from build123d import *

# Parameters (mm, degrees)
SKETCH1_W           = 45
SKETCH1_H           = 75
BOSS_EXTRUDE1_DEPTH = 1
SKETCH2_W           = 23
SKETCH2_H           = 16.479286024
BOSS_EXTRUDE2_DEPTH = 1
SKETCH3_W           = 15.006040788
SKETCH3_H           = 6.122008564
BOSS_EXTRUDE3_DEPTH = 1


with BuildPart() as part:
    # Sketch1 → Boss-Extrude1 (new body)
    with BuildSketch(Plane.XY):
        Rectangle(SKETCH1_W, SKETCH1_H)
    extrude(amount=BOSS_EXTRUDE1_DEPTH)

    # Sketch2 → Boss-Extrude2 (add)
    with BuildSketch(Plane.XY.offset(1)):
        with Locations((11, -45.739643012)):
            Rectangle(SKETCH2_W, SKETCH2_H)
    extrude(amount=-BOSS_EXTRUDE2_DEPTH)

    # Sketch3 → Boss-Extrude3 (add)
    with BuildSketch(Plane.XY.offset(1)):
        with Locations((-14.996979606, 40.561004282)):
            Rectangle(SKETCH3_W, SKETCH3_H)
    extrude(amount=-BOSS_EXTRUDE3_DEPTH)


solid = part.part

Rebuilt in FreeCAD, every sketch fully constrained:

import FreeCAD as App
import Part
import Sketcher
Q = App.Units.Quantity


def add_polygon(sketch, points):
    """Adds a closed chain of lines whose ends are joined by coincident constraints."""
    first, n = sketch.GeometryCount, len(points)
    for a, b in zip(points, points[1:] + points[:1]):
        sketch.addGeometry(Part.LineSegment(App.Vector(*a, 0), App.Vector(*b, 0)), False)
    for i in range(n):
        sketch.addConstraint(Sketcher.Constraint("Coincident", first + i, 2, first + (i + 1) % n, 1))

doc = App.newDocument("Part")
body = doc.addObject("PartDesign::Body", "Body")

# Sketch on XY plane
sketch1 = body.newObject("Sketcher::SketchObject", "Sketch")
sketch1.AttachmentSupport = (doc.getObject("XY_Plane"), [""])
sketch1.MapMode = "FlatFace"
add_polygon(sketch1, [(-22, 38), (-22, -38), (22, -38), (22, 38)])  # lines 0-3
sketch1.addConstraint(Sketcher.Constraint("Vertical", 0))
sketch1.addConstraint(Sketcher.Constraint("Horizontal", 1))
sketch1.addConstraint(Sketcher.Constraint("Vertical", 2))
sketch1.addConstraint(Sketcher.Constraint("Horizontal", 3))
sketch1.addConstraint(Sketcher.Constraint("Symmetric", 0, 2, 2, 2, -1, 1))
sketch1.addConstraint(Sketcher.Constraint("DistanceX", 1, 1, 1, 2, Q("45 mm")))
sketch1.addConstraint(Sketcher.Constraint("DistanceY", 0, 2, 0, 1, Q("75 mm")))
pad1 = body.newObject("PartDesign::Pad", "Pad")
pad1.Profile = sketch1
pad1.Length = 1

# Sketch on XY plane
sketch2 = body.newObject("Sketcher::SketchObject", "Sketch001")
sketch2.AttachmentSupport = (doc.getObject("XY_Plane"), [""])
sketch2.MapMode = "FlatFace"
sketch2.AttachmentOffset = App.Placement(App.Vector(0, 0, 1), App.Rotation())
add_polygon(sketch2, [(0, -38), (0, -54), (22, -54), (22, -38)])  # lines 0-3
sketch2.addConstraint(Sketcher.Constraint("Vertical", 0))
sketch2.addConstraint(Sketcher.Constraint("Horizontal", 1))
sketch2.addConstraint(Sketcher.Constraint("Vertical", 2))
sketch2.addConstraint(Sketcher.Constraint("Horizontal", 3))
sketch2.addConstraint(Sketcher.Constraint("DistanceX", 1, 1, 1, 2, Q("23 mm")))
sketch2.addConstraint(Sketcher.Constraint("DistanceX", 0, 2, -1, 1, Q("0.5 mm")))
sketch2.addConstraint(Sketcher.Constraint("DistanceY", 2, 2, -1, 1, Q("37.5 mm")))
sketch2.addConstraint(Sketcher.Constraint("DistanceY", 0, 2, 0, 1, Q("16.479286 mm")))
pad2 = body.newObject("PartDesign::Pad", "Pad001")
pad2.Profile = sketch2
pad2.Length = 1
pad2.Reversed = True

# Sketch on XY plane
sketch3 = body.newObject("Sketcher::SketchObject", "Sketch002")
sketch3.AttachmentSupport = (doc.getObject("XY_Plane"), [""])
sketch3.MapMode = "FlatFace"
sketch3.AttachmentOffset = App.Placement(App.Vector(0, 0, 1), App.Rotation())
add_polygon(sketch3, [(-22, 44), (-22, 38), (-7, 38), (-7, 44)])  # lines 0-3
sketch3.addConstraint(Sketcher.Constraint("Vertical", 0))
sketch3.addConstraint(Sketcher.Constraint("Horizontal", 1))
sketch3.addConstraint(Sketcher.Constraint("Vertical", 2))
sketch3.addConstraint(Sketcher.Constraint("Horizontal", 3))
sketch3.addConstraint(Sketcher.Constraint("DistanceX", 0, 2, -1, 1, Q("22.5 mm")))
sketch3.addConstraint(Sketcher.Constraint("DistanceY", -1, 1, 0, 2, Q("37.5 mm")))
sketch3.addConstraint(Sketcher.Constraint("DistanceX", 1, 1, 1, 2, Q("15.006041 mm")))
sketch3.addConstraint(Sketcher.Constraint("DistanceY", 0, 2, 0, 1, Q("6.122009 mm")))
pad3 = body.newObject("PartDesign::Pad", "Pad002")
pad3.Profile = sketch3
pad3.Length = 1
pad3.Reversed = True

doc.recompute()
